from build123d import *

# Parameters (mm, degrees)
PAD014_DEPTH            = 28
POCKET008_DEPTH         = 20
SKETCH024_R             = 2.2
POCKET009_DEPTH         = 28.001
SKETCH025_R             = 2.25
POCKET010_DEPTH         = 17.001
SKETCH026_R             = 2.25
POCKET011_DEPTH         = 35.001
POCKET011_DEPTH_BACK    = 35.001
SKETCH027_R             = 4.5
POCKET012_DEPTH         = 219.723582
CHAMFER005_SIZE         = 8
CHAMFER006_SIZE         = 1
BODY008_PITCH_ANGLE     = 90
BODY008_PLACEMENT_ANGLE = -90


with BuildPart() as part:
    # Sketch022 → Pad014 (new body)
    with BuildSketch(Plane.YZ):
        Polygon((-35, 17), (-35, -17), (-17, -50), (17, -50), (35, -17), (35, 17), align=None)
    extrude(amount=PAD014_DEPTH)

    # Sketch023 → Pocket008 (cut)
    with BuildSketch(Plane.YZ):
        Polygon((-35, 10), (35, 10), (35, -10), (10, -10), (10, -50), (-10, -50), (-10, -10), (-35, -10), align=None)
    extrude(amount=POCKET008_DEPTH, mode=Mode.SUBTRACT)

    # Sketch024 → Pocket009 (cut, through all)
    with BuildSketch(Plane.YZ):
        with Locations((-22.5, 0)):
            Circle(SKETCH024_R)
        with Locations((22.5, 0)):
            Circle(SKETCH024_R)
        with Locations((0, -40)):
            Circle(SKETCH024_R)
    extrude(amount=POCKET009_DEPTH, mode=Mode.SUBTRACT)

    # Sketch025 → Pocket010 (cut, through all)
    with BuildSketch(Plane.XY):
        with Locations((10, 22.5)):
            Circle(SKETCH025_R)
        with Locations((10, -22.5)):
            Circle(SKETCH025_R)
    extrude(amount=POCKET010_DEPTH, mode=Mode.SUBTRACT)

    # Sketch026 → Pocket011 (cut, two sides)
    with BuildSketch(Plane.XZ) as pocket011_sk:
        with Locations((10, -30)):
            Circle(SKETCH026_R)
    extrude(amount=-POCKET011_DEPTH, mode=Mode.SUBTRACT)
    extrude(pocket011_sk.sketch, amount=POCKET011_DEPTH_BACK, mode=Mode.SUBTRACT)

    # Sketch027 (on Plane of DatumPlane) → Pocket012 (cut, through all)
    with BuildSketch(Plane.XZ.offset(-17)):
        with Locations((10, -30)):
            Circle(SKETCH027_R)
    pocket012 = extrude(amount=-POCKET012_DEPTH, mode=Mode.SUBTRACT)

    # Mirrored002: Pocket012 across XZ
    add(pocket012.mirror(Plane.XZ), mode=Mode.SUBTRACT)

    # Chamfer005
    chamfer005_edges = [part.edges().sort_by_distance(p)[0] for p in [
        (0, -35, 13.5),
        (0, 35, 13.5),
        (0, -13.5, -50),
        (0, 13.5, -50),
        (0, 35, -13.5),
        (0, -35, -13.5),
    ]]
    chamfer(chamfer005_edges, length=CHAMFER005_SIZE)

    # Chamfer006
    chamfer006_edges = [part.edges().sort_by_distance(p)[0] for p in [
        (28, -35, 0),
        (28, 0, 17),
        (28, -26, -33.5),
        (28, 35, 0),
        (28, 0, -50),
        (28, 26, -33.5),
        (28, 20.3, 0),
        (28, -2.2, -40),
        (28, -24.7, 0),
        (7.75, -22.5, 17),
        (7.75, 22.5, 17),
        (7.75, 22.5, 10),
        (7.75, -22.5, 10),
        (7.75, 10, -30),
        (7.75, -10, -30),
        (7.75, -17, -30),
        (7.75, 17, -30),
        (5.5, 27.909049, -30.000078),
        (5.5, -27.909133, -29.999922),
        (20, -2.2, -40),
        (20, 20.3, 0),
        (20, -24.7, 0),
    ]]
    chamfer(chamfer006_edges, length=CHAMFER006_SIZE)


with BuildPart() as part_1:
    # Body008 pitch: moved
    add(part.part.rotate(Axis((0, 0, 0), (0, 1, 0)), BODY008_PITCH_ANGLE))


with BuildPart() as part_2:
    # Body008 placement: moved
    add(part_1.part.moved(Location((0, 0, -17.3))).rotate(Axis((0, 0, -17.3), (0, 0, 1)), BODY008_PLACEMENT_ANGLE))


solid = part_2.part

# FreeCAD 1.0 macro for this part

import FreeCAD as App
import Part
import Sketcher
Q = App.Units.Quantity


def edges_at(feature, points):
    """Names of the edges that pass closest to the given points."""
    edges = feature.Shape.Edges
    near = lambda p: min(range(len(edges)), key=lambda i: edges[i].distToShape(Part.Vertex(*p))[0])
    return sorted({f"Edge{near(p) + 1}" for p in points})

doc = App.newDocument("Part")
params = doc.addObject("Spreadsheet::Sheet", "Params")
for row, (alias, value) in enumerate([
    ("sketch1_width", "34 mm"),
    ("sketch1_width2", "70 mm"),
    ("pad1_length", "28 mm"),
    ("sketch2_width", "70 mm"),
    ("sketch2_width2", "25 mm"),
    ("sketch2_height", "40 mm"),
    ("pocket1_length", "20 mm"),
    ("sketch3_diameter", "4.4 mm"),
    ("sketch4_diameter", "4.5 mm"),
    ("sketch5_diameter", "4.5 mm"),
    ("sketch6_diameter", "9 mm"),
    ("chamfer_size", "8 mm"),
    ("chamfer2_size", "1 mm"),
], start=1):
    params.set(f"A{row}", alias)
    params.set(f"B{row}", "=" + value)
    params.setAlias(f"B{row}", alias)

body = doc.addObject("PartDesign::Body", "Body")

# Sketch on YZ plane
sketch1 = body.newObject("Sketcher::SketchObject", "Sketch")
sketch1.AttachmentSupport = (doc.getObject("YZ_Plane"), [""])
sketch1.MapMode = "FlatFace"
sketch1.addGeometry([
    Part.LineSegment(App.Vector(-35, 17, 0), App.Vector(-35, -17, 0)),  # 0
    Part.LineSegment(App.Vector(-35, -17, 0), App.Vector(-17, -50, 0)),  # 1
    Part.LineSegment(App.Vector(-17, -50, 0), App.Vector(17, -50, 0)),  # 2
    Part.LineSegment(App.Vector(17, -50, 0), App.Vector(35, -17, 0)),  # 3
    Part.LineSegment(App.Vector(35, -17, 0), App.Vector(35, 17, 0)),  # 4
    Part.LineSegment(App.Vector(35, 17, 0), App.Vector(-35, 17, 0)),  # 5
], False)
sketch1.addConstraint([
    Sketcher.Constraint("Coincident", 0, 2, 1, 1),
    Sketcher.Constraint("Coincident", 1, 2, 2, 1),
    Sketcher.Constraint("Coincident", 2, 2, 3, 1),
    Sketcher.Constraint("Coincident", 3, 2, 4, 1),
    Sketcher.Constraint("Coincident", 4, 2, 5, 1),
    Sketcher.Constraint("Coincident", 5, 2, 0, 1),
    Sketcher.Constraint("Vertical", 0),
    Sketcher.Constraint("Horizontal", 2),
    Sketcher.Constraint("Vertical", 4),
    Sketcher.Constraint("Horizontal", 5),
    Sketcher.Constraint("Symmetric", 0, 2, 4, 2, -1, 1),
    Sketcher.Constraint("Horizontal", 0, 2, 3, 2),
    Sketcher.Constraint("Equal", 2, 0),
    Sketcher.Constraint("Equal", 1, 3),
    Sketcher.Constraint("DistanceX", 2, 1, 2, 2, Q("34 mm")),
    Sketcher.Constraint("DistanceX", 5, 2, 5, 1, Q("70 mm")),
    Sketcher.Constraint("DistanceY", 1, 2, -1, 1, Q("50 mm")),
])
sketch1.setExpression("Constraints[14]", "Params.sketch1_width")
sketch1.setExpression("Constraints[15]", "Params.sketch1_width2")
pad1 = body.newObject("PartDesign::Pad", "Pad")
pad1.Profile = sketch1
pad1.setExpression("Length", "Params.pad1_length")

# Sketch on YZ plane
sketch2 = body.newObject("Sketcher::SketchObject", "Sketch001")
sketch2.AttachmentSupport = (doc.getObject("YZ_Plane"), [""])
sketch2.MapMode = "FlatFace"
sketch2.addGeometry([
    Part.LineSegment(App.Vector(35, 10, 0), App.Vector(-35, 10, 0)),  # 0
    Part.LineSegment(App.Vector(-35, 10, 0), App.Vector(-35, -10, 0)),  # 1
    Part.LineSegment(App.Vector(-35, -10, 0), App.Vector(-10, -10, 0)),  # 2
    Part.LineSegment(App.Vector(-10, -10, 0), App.Vector(-10, -50, 0)),  # 3
    Part.LineSegment(App.Vector(-10, -50, 0), App.Vector(10, -50, 0)),  # 4
    Part.LineSegment(App.Vector(10, -50, 0), App.Vector(10, -10, 0)),  # 5
    Part.LineSegment(App.Vector(10, -10, 0), App.Vector(35, -10, 0)),  # 6
    Part.LineSegment(App.Vector(35, -10, 0), App.Vector(35, 10, 0)),  # 7
], False)
sketch2.addConstraint([
    Sketcher.Constraint("Coincident", 0, 2, 1, 1),
    Sketcher.Constraint("Coincident", 1, 2, 2, 1),
    Sketcher.Constraint("Coincident", 2, 2, 3, 1),
    Sketcher.Constraint("Coincident", 3, 2, 4, 1),
    Sketcher.Constraint("Coincident", 4, 2, 5, 1),
    Sketcher.Constraint("Coincident", 5, 2, 6, 1),
    Sketcher.Constraint("Coincident", 6, 2, 7, 1),
    Sketcher.Constraint("Coincident", 7, 2, 0, 1),
    Sketcher.Constraint("Horizontal", 0),
    Sketcher.Constraint("Vertical", 1),
    Sketcher.Constraint("Horizontal", 2),
    Sketcher.Constraint("Vertical", 3),
    Sketcher.Constraint("Horizontal", 4),
    Sketcher.Constraint("Vertical", 5),
    Sketcher.Constraint("Horizontal", 6),
    Sketcher.Constraint("Vertical", 7),
    Sketcher.Constraint("Symmetric", 0, 2, 6, 2, -1, 1),
    Sketcher.Constraint("Symmetric", 2, 2, 5, 2, -2),
    Sketcher.Constraint("Equal", 4, 1),
    Sketcher.Constraint("DistanceX", 0, 2, 0, 1, Q("70 mm")),
    Sketcher.Constraint("DistanceX", 2, 1, 2, 2, Q("25 mm")),
    Sketcher.Constraint("DistanceY", 3, 2, 3, 1, Q("40 mm")),
])
sketch2.setExpression("Constraints[19]", "Params.sketch2_width")
sketch2.setExpression("Constraints[20]", "Params.sketch2_width2")
sketch2.setExpression("Constraints[21]", "Params.sketch2_height")
pocket1 = body.newObject("PartDesign::Pocket", "Pocket")
pocket1.Profile = sketch2
pocket1.setExpression("Length", "Params.pocket1_length")
pocket1.Reversed = True

# Sketch on YZ plane
sketch3 = body.newObject("Sketcher::SketchObject", "Sketch002")
sketch3.AttachmentSupport = (doc.getObject("YZ_Plane"), [""])
sketch3.MapMode = "FlatFace"
sketch3.addGeometry([
    Part.Circle(App.Vector(-22.5, 0, 0), App.Vector(0, 0, 1), 2.2),
    Part.Circle(App.Vector(22.5, 0, 0), App.Vector(0, 0, 1), 2.2),
    Part.Circle(App.Vector(0, -40, 0), App.Vector(0, 0, 1), 2.2),
], False)
sketch3.addConstraint([
    Sketcher.Constraint("Equal", 0, 1),
    Sketcher.Constraint("Equal", 1, 2),
    Sketcher.Constraint("Symmetric", 0, 3, 1, 3, -1, 1),
    Sketcher.Constraint("PointOnObject", 0, 3, -1),
    Sketcher.Constraint("PointOnObject", 2, 3, -2),
    Sketcher.Constraint("Diameter", 0, Q("4.4 mm")),
    Sketcher.Constraint("DistanceY", 2, 3, -1, 1, Q("40 mm")),
    Sketcher.Constraint("DistanceX", 0, 3, 1, 3, Q("45 mm")),
])
sketch3.setExpression("Constraints[5]", "Params.sketch3_diameter")
pocket2 = body.newObject("PartDesign::Pocket", "Pocket001")
pocket2.Profile = sketch3
pocket2.Type = "ThroughAll"
pocket2.Reversed = True

# Sketch on XY plane
sketch4 = body.newObject("Sketcher::SketchObject", "Sketch003")
sketch4.AttachmentSupport = (doc.getObject("XY_Plane"), [""])
sketch4.MapMode = "FlatFace"
sketch4.addGeometry([
    Part.Circle(App.Vector(10, 22.5, 0), App.Vector(0, 0, 1), 2.2),
    Part.Circle(App.Vector(10, -22.5, 0), App.Vector(0, 0, 1), 2.2),
], False)
sketch4.addConstraint([
    Sketcher.Constraint("Equal", 0, 1),
    Sketcher.Constraint("Symmetric", 0, 3, 1, 3, -1),
    Sketcher.Constraint("Diameter", 0, Q("4.5 mm")),
    Sketcher.Constraint("DistanceX", -1, 1, 0, 3, Q("10 mm")),
    Sketcher.Constraint("DistanceY", 1, 3, 0, 3, Q("45 mm")),
])
sketch4.setExpression("Constraints[2]", "Params.sketch4_diameter")
pocket3 = body.newObject("PartDesign::Pocket", "Pocket002")
pocket3.Profile = sketch4
pocket3.Type = "ThroughAll"
pocket3.Reversed = True

# Sketch on XZ plane
sketch5 = body.newObject("Sketcher::SketchObject", "Sketch004")
sketch5.AttachmentSupport = (doc.getObject("XZ_Plane"), [""])
sketch5.MapMode = "FlatFace"
sketch5.addGeometry(Part.Circle(App.Vector(10, -30, 0), App.Vector(0, 0, 1), 2.2), False)
sketch5.addConstraint([
    Sketcher.Constraint("Diameter", 0, Q("4.5 mm")),
    Sketcher.Constraint("DistanceX", -1, 1, 0, 3, Q("10 mm")),
    Sketcher.Constraint("DistanceY", 0, 3, -1, 1, Q("30 mm")),
])
sketch5.setExpression("Constraints[0]", "Params.sketch5_diameter")
pocket4 = body.newObject("PartDesign::Pocket", "Pocket003")
pocket4.Profile = sketch5
pocket4.Type = "ThroughAll"
pocket4.Midplane = True

# Sketch on XZ plane
sketch6 = body.newObject("Sketcher::SketchObject", "Sketch005")
sketch6.AttachmentSupport = (doc.getObject("XZ_Plane"), [""])
sketch6.MapMode = "FlatFace"
sketch6.AttachmentOffset = App.Placement(App.Vector(0, 0, -17), App.Rotation())
sketch6.addGeometry(Part.Circle(App.Vector(10, -30, 0), App.Vector(0, 0, 1), 4.5), False)
sketch6.addConstraint([
    Sketcher.Constraint("Diameter", 0, Q("9 mm")),
    Sketcher.Constraint("DistanceX", -1, 1, 0, 3, Q("10 mm")),
    Sketcher.Constraint("DistanceY", 0, 3, -1, 1, Q("30 mm")),
])
sketch6.setExpression("Constraints[0]", "Params.sketch6_diameter")
pocket5 = body.newObject("PartDesign::Pocket", "Pocket004")
pocket5.Profile = sketch6
pocket5.Type = "ThroughAll"
doc.recompute()

mirrored = body.newObject("PartDesign::Mirrored", "Mirrored")
mirrored.Originals = [pocket5]
mirrored.MirrorPlane = (doc.getObject("XZ_Plane"), [""])
body.Tip = mirrored
doc.recompute()

chamfer = body.newObject("PartDesign::Chamfer", "Chamfer")
chamfer.Base = (mirrored, edges_at(mirrored, [
    (0, -35, 13.5),
    (0, 35, 13.5),
    (0, -13.5, -50),
    (0, 13.5, -50),
    (0, 35, -13.5),
    (0, -35, -13.5),
]))
chamfer.setExpression("Size", "Params.chamfer_size")
doc.recompute()

chamfer2 = body.newObject("PartDesign::Chamfer", "Chamfer001")
chamfer2.Base = (chamfer, edges_at(chamfer, [
    (28, -35, 0),
    (28, 0, 17),
    (28, -26, -33.5),
    (28, 35, 0),
    (28, 0, -50),
    (28, 26, -33.5),
    (28, 20.3, 0),
    (28, -2.2, -40),
    (28, -24.7, 0),
    (7.75, -22.5, 17),
    (7.75, 22.5, 17),
    (7.75, 22.5, 10),
    (7.75, -22.5, 10),
    (7.75, 10, -30),
    (7.75, -10, -30),
    (7.75, -17, -30),
    (7.75, 17, -30),
    (5.5, 27.909, -30),
    (5.5, -27.909, -30),
    (20, -2.2, -40),
    (20, 20.3, 0),
    (20, -24.7, 0),
]))
chamfer2.setExpression("Size", "Params.chamfer2_size")
body2 = doc.addObject("PartDesign::Body", "Body001")
doc.recompute()

body.Placement = App.Placement(App.Vector(0, 0, 0), App.Rotation(App.Vector(0, 1, 0), 90))
boolean = body2.newObject("PartDesign::Boolean", "Boolean")
boolean.Type = "Fuse"
boolean.addObjects([body])
body3 = doc.addObject("PartDesign::Body", "Body002")
doc.recompute()

body2.Placement = App.Placement(App.Vector(0, 0, -17.3), App.Rotation(App.Vector(0, 0, 1), 270))
boolean2 = body3.newObject("PartDesign::Boolean", "Boolean001")
boolean2.Type = "Fuse"
boolean2.addObjects([body2])

doc.recompute()
